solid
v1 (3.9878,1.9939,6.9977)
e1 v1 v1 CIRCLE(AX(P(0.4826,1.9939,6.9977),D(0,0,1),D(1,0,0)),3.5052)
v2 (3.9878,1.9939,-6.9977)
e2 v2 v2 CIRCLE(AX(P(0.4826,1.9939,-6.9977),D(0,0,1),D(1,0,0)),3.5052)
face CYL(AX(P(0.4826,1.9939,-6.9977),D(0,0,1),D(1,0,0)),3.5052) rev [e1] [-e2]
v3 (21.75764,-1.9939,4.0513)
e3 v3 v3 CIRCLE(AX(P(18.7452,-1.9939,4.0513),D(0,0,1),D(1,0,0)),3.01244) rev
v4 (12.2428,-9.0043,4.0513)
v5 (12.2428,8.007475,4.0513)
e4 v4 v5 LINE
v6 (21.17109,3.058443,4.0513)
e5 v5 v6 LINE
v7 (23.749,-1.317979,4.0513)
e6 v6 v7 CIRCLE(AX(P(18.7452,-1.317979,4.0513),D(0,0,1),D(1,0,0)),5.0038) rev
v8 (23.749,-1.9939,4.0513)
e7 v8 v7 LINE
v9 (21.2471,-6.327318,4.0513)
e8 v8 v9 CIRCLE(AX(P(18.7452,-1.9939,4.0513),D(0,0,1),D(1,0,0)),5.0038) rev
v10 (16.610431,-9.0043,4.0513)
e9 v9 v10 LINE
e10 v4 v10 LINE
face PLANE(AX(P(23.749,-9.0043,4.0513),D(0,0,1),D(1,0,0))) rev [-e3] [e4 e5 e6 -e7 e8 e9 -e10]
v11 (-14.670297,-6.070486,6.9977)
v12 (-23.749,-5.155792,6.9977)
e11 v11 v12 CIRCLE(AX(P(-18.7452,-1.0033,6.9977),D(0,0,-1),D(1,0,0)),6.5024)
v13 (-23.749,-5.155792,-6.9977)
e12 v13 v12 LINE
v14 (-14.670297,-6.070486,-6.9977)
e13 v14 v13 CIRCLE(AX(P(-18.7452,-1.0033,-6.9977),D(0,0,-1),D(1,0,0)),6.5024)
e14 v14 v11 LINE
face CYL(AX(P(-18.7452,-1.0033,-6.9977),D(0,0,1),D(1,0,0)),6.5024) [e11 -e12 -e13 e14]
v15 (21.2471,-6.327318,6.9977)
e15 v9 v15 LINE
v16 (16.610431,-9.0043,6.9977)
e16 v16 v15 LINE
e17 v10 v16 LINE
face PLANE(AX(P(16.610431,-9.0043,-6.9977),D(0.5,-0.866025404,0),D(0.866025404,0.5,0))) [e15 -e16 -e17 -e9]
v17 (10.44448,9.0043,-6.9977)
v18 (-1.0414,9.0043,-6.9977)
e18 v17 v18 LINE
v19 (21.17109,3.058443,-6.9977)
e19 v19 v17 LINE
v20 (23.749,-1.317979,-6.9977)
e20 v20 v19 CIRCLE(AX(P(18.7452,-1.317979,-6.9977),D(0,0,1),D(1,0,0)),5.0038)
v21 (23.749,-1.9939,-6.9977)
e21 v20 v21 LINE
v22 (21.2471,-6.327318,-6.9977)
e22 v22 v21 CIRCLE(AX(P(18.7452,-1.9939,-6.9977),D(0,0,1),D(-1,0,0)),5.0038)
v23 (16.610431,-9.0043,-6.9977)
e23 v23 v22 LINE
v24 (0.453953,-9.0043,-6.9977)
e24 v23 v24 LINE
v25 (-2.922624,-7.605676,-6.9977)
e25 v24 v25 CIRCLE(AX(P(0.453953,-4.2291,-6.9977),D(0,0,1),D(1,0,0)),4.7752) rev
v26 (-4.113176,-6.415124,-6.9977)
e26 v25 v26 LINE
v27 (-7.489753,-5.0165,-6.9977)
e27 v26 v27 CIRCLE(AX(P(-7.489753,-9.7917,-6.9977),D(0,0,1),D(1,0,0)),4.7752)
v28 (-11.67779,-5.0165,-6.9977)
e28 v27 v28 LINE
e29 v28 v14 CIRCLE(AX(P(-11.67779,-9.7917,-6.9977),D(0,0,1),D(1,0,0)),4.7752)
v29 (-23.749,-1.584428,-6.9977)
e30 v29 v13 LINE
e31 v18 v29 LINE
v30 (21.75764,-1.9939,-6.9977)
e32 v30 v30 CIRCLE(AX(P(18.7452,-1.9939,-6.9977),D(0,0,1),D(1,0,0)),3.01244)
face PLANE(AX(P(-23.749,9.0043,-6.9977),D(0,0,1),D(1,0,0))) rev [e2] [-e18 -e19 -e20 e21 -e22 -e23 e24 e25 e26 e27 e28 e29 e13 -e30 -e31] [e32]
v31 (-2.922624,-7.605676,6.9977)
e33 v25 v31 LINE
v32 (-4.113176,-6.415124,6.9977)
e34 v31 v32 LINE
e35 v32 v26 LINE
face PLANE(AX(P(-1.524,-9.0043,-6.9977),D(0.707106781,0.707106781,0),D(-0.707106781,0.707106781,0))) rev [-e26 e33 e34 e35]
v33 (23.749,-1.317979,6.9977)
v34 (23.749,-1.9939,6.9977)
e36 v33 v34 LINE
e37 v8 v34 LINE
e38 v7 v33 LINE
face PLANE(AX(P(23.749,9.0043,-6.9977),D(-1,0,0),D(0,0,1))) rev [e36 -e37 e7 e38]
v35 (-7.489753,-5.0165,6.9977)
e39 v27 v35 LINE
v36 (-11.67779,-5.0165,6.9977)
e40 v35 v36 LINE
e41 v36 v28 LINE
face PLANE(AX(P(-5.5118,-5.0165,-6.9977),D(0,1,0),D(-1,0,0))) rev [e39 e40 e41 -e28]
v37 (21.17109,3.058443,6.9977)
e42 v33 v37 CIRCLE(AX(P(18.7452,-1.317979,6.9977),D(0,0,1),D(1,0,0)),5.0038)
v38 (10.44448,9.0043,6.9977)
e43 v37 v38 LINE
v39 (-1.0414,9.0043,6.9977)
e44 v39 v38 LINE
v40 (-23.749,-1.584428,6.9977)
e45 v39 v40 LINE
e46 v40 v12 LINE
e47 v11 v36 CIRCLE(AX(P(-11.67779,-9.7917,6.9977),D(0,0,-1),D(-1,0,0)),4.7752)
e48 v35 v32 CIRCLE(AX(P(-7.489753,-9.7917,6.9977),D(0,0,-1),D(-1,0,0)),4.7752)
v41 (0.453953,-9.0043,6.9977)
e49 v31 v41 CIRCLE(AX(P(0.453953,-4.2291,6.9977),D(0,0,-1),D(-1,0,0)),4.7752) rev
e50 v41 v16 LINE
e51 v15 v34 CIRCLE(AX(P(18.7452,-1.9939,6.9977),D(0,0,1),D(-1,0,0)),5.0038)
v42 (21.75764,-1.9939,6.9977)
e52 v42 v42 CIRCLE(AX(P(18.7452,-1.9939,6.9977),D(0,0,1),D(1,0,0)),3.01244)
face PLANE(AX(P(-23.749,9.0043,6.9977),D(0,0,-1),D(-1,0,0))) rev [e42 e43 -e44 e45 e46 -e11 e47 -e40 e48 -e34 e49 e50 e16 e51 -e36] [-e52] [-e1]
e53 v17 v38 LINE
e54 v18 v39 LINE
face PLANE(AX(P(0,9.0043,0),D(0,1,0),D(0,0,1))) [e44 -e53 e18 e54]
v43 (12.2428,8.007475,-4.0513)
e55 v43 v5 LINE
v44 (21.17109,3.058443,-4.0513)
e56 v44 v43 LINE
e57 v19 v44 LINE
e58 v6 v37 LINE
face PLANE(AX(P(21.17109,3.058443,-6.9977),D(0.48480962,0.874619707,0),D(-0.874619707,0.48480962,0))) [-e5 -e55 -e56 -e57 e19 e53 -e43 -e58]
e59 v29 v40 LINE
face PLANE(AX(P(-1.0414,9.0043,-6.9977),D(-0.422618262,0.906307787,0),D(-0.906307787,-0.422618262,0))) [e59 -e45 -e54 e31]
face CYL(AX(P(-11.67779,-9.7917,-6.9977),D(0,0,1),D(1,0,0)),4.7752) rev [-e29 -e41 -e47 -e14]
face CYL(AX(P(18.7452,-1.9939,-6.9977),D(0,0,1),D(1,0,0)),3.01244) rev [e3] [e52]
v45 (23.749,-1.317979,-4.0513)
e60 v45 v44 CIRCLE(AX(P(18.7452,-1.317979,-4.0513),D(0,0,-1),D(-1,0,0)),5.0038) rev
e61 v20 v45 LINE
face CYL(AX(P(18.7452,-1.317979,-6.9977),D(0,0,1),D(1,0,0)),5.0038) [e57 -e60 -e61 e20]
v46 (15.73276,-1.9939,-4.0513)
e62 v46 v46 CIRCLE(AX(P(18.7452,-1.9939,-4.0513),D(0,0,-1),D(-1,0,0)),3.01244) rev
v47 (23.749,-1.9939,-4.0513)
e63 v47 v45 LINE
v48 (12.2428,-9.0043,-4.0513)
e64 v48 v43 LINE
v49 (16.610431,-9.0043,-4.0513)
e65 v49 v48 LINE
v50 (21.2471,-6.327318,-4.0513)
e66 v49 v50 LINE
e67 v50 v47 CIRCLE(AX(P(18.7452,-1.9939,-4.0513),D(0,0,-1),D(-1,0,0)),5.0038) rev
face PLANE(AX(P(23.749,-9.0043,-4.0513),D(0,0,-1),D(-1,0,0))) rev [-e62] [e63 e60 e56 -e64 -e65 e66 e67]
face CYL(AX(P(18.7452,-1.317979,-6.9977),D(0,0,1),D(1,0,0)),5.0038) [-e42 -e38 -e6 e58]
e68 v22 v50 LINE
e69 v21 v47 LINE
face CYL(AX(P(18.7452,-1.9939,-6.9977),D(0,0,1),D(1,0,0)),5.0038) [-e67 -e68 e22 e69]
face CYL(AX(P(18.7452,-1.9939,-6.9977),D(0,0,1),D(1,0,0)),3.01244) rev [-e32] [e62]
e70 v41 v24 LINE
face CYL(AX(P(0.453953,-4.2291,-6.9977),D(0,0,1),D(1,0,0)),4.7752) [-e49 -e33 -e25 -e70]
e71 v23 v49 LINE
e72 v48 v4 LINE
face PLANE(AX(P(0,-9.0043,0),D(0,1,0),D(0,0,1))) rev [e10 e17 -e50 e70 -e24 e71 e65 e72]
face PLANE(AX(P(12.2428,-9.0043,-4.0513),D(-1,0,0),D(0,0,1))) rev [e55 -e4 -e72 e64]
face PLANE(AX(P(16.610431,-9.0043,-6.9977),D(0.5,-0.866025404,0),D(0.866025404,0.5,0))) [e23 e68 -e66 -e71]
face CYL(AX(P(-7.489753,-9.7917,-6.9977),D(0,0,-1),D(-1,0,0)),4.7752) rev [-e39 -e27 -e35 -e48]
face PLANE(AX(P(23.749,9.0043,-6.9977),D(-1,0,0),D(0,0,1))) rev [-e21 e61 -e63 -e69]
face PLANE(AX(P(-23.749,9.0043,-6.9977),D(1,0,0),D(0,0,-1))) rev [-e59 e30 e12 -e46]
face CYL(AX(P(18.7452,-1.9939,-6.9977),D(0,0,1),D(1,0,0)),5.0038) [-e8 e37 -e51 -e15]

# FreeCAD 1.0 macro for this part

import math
import FreeCAD as App
import Part
import Sketcher
Q = App.Units.Quantity


def edges_at(feature, points):
    """Names of the edges that pass closest to the given points."""
    edges = feature.Shape.Edges
    near = lambda p: min(range(len(edges)), key=lambda i: edges[i].distToShape(Part.Vertex(*p))[0])
    return sorted({f"Edge{near(p) + 1}" for p in points})

doc = App.newDocument("Part")
body = doc.addObject("PartDesign::Body", "Body")

# Sketch on XZ plane
sketch1 = body.newObject("Sketcher::SketchObject", "Sketch")
sketch1.AttachmentSupport = (doc.getObject("XZ_Plane"), [""])
sketch1.MapMode = "FlatFace"
sketch1.addGeometry([
    Part.LineSegment(App.Vector(-24, -7, 0), App.Vector(-24, 7, 0)),
    Part.LineSegment(App.Vector(-24, 7, 0), App.Vector(24, 7, 0)),
    Part.LineSegment(App.Vector(24, 7, 0), App.Vector(24, -7, 0)),
    Part.LineSegment(App.Vector(24, -7, 0), App.Vector(-24, -7, 0)),
], False)
sketch1.addConstraint([
    Sketcher.Constraint("Coincident", 0, 2, 1, 1),
    Sketcher.Constraint("Coincident", 1, 2, 2, 1),
    Sketcher.Constraint("Coincident", 2, 2, 3, 1),
    Sketcher.Constraint("Coincident", 3, 2, 0, 1),
    Sketcher.Constraint("Vertical", 0),
    Sketcher.Constraint("Horizontal", 1),
    Sketcher.Constraint("Vertical", 2),
    Sketcher.Constraint("Horizontal", 3),
    Sketcher.Constraint("Symmetric", 0, 2, 2, 2, -1, 1),
    Sketcher.Constraint("DistanceX", 1, 1, 1, 2, Q("1.87 in")),
    Sketcher.Constraint("DistanceY", 0, 1, 0, 2, Q("0.551 in")),
])
pad1 = body.newObject("PartDesign::Pad", "Pad")
pad1.Profile = sketch1
pad1.Length = Q("0.709 in")
pad1.Midplane = True

# Sketch on XY plane
sketch2 = body.newObject("Sketcher::SketchObject", "Sketch001")
sketch2.AttachmentSupport = (doc.getObject("XY_Plane"), [""])
sketch2.MapMode = "FlatFace"
sketch2.addGeometry([
    Part.Circle(App.Vector(18.7, -2, 0), App.Vector(0, 0, 1), 3),
    Part.Circle(App.Vector(0.5, 2, 0), App.Vector(0, 0, 1), 3.5),
], False)
sketch2.addConstraint([
    Sketcher.Constraint("Diameter", 1, Q("0.276 in")),
    Sketcher.Constraint("Diameter", 0, Q("0.2372 in")),
    Sketcher.Constraint("DistanceX", -1, 1, 0, 3, Q("0.738 in")),
    Sketcher.Constraint("DistanceX", -1, 1, 1, 3, Q("0.019 in")),
    Sketcher.Constraint("DistanceY", 0, 3, 1, 3, Q("0.157 in")),
    Sketcher.Constraint("DistanceY", 0, 3, -1, 1, Q("0.0785 in")),
])
pocket1 = body.newObject("PartDesign::Pocket", "Pocket")
pocket1.Profile = sketch2
pocket1.Type = "ThroughAll"
pocket1.Midplane = True

# Sketch on XY plane
sketch3 = body.newObject("Sketcher::SketchObject", "Sketch002")
sketch3.AttachmentSupport = (doc.getObject("XY_Plane"), [""])
sketch3.MapMode = "FlatFace"
sketch3.addGeometry([
    Part.LineSegment(App.Vector(-30, 15.3, 0), App.Vector(-30, -15.3, 0)),  # 0
    Part.LineSegment(App.Vector(-30, -15.3, 0), App.Vector(30, -15.3, 0)),  # 1
    Part.LineSegment(App.Vector(30, -15.3, 0), App.Vector(30, 15.3, 0)),  # 2
    Part.LineSegment(App.Vector(30, 15.3, 0), App.Vector(-30, 15.3, 0)),  # 3
    Part.LineSegment(App.Vector(21.2, -6.3, 0), App.Vector(16.6, -9, 0)),  # 4
    Part.LineSegment(App.Vector(16.6, -9, 0), App.Vector(-23.7, -9, 0)),  # 5
    Part.LineSegment(App.Vector(-23.7, -9, 0), App.Vector(-23.7, -1.6, 0)),  # 6
    Part.LineSegment(App.Vector(-23.7, -1.6, 0), App.Vector(-1, 9, 0)),  # 7
    Part.LineSegment(App.Vector(-1, 9, 0), App.Vector(10.4, 9, 0)),  # 8
    Part.LineSegment(App.Vector(10.4, 9, 0), App.Vector(21.2, 3.1, 0)),  # 9
    Part.ArcOfCircle(Part.Circle(App.Vector(18.7, -1.3, 0), App.Vector(0, 0, 1), 5), math.radians(0), math.radians(61)),  # 10
    Part.LineSegment(App.Vector(23.7, -1.3, 0), App.Vector(23.7, -2, 0)),  # 11
    Part.ArcOfCircle(Part.Circle(App.Vector(18.7, -2, 0), App.Vector(0, 0, 1), 5), math.radians(-60), math.radians(0)),  # 12
], False)
sketch3.addConstraint([
    Sketcher.Constraint("Coincident", 0, 2, 1, 1),
    Sketcher.Constraint("Coincident", 1, 2, 2, 1),
    Sketcher.Constraint("Coincident", 2, 2, 3, 1),
    Sketcher.Constraint("Coincident", 3, 2, 0, 1),
    Sketcher.Constraint("Coincident", 4, 2, 5, 1),
    Sketcher.Constraint("Coincident", 5, 2, 6, 1),
    Sketcher.Constraint("Coincident", 6, 2, 7, 1),
    Sketcher.Constraint("Coincident", 7, 2, 8, 1),
    Sketcher.Constraint("Coincident", 8, 2, 9, 1),
    Sketcher.Constraint("Tangent", 9, 2, 10, 2),
    Sketcher.Constraint("Tangent", 10, 1, 11, 1),
    Sketcher.Constraint("Tangent", 11, 2, 12, 2),
    Sketcher.Constraint("Tangent", 12, 1, 4, 1),
    Sketcher.Constraint("Vertical", 0),
    Sketcher.Constraint("Horizontal", 1),
    Sketcher.Constraint("Vertical", 2),
    Sketcher.Constraint("Horizontal", 3),
    Sketcher.Constraint("Horizontal", 5),
    Sketcher.Constraint("Vertical", 6),
    Sketcher.Constraint("Horizontal", 8),
    Sketcher.Constraint("Vertical", 11),
    Sketcher.Constraint("Equal", 10, 12),
    Sketcher.Constraint("Symmetric", 0, 2, 2, 2, -1, 1),
    Sketcher.Constraint("Angle", 4, Q("-150 deg")),
    Sketcher.Constraint("Angle", 7, Q("25 deg")),
    Sketcher.Constraint("Angle", 9, Q("-29 deg")),
    Sketcher.Constraint("Radius", 10, Q("0.197 in")),
    Sketcher.Constraint("DistanceX", 8, 1, 8, 2, Q("0.4522 in")),
    Sketcher.Constraint("DistanceX", -1, 1, 10, 3, Q("0.738 in")),
    Sketcher.Constraint("DistanceX", 5, 2, -1, 1, Q("0.935 in")),
    Sketcher.Constraint("DistanceX", 7, 2, -1, 1, Q("0.041 in")),
    Sketcher.Constraint("DistanceY", 4, 2, 12, 3, Q("0.276 in")),
    Sketcher.Constraint("DistanceY", 12, 3, 7, 2, Q("0.433 in")),
    Sketcher.Constraint("DistanceX", 1, 1, 1, 2, 60.036),
    Sketcher.Constraint("DistanceY", 0, 2, 0, 1, 30.546),
    Sketcher.Constraint("DistanceY", 12, 3, -1, 1, Q("0.0785 in")),
])
pocket2 = body.newObject("PartDesign::Pocket", "Pocket001")
pocket2.Profile = sketch3
pocket2.Type = "ThroughAll"
pocket2.Midplane = True

# Sketch on XY plane
sketch4 = body.newObject("Sketcher::SketchObject", "Sketch003")
sketch4.AttachmentSupport = (doc.getObject("XY_Plane"), [""])
sketch4.MapMode = "FlatFace"
sketch4.addGeometry([
    Part.LineSegment(App.Vector(-1.5, -9, 0), App.Vector(-5.5, -5, 0)),  # 0
    Part.LineSegment(App.Vector(-5.5, -5, 0), App.Vector(-13.6, -5, 0)),  # 1
    Part.ArcOfCircle(Part.Circle(App.Vector(-18.7, -1, 0), App.Vector(0, 0, 1), 6.5), math.radians(-140), math.radians(-38)),  # 2
    Part.LineSegment(App.Vector(-23.7, -5.2, 0), App.Vector(-23.7, -9, 0)),  # 3
    Part.LineSegment(App.Vector(-23.7, -9, 0), App.Vector(-1.5, -9, 0)),  # 4
], False)
sketch4.addConstraint([
    Sketcher.Constraint("Coincident", 0, 2, 1, 1),
    Sketcher.Constraint("Coincident", 1, 2, 2, 2),
    Sketcher.Constraint("Coincident", 2, 1, 3, 1),
    Sketcher.Constraint("Coincident", 3, 2, 4, 1),
    Sketcher.Constraint("Coincident", 4, 2, 0, 1),
    Sketcher.Constraint("Horizontal", 1),
    Sketcher.Constraint("Vertical", 3),
    Sketcher.Constraint("Horizontal", 4),
    Sketcher.Constraint("Angle", 0, Q("135 deg")),
    Sketcher.Constraint("Radius", 2, Q("0.256 in")),
    Sketcher.Constraint("DistanceX", 4, 1, 4, 2, Q("0.875 in")),
    Sketcher.Constraint("DistanceX", 4, 2, -1, 1, Q("0.06 in")),
    Sketcher.Constraint("DistanceX", 2, 3, -1, 1, Q("0.738 in")),
    Sketcher.Constraint("DistanceX", 0, 2, -1, 1, Q("0.217 in")),
    Sketcher.Constraint("DistanceY", 0, 2, 2, 3, Q("0.158 in")),
    Sketcher.Constraint("DistanceY", 2, 3, -1, 1, Q("0.0395 in")),
])
pocket3 = body.newObject("PartDesign::Pocket", "Pocket002")
pocket3.Profile = sketch4
pocket3.Type = "ThroughAll"
pocket3.Midplane = True
doc.recompute()

fillet = body.newObject("PartDesign::Fillet", "Fillet")
fillet.Base = (pocket3, edges_at(pocket3, [(-13.629, -5.016, 0), (-5.512, -5.016, 0), (-1.524, -9.004, 0)]))
fillet.Radius = Q("0.188 in")

# Sketch on XZ plane
sketch5 = body.newObject("Sketcher::SketchObject", "Sketch004")
sketch5.AttachmentSupport = (doc.getObject("XZ_Plane"), [""])
sketch5.MapMode = "FlatFace"
sketch5.addGeometry([
    Part.LineSegment(App.Vector(12, -4, 0), App.Vector(12, 4, 0)),
    Part.LineSegment(App.Vector(12, 4, 0), App.Vector(24, 4, 0)),
    Part.LineSegment(App.Vector(24, 4, 0), App.Vector(24, -4, 0)),
    Part.LineSegment(App.Vector(24, -4, 0), App.Vector(12, -4, 0)),
], False)
sketch5.addConstraint([
    Sketcher.Constraint("Coincident", 0, 2, 1, 1),
    Sketcher.Constraint("Coincident", 1, 2, 2, 1),
    Sketcher.Constraint("Coincident", 2, 2, 3, 1),
    Sketcher.Constraint("Coincident", 3, 2, 0, 1),
    Sketcher.Constraint("Vertical", 0),
    Sketcher.Constraint("Horizontal", 1),
    Sketcher.Constraint("Vertical", 2),
    Sketcher.Constraint("Horizontal", 3),
    Sketcher.Constraint("DistanceX", 1, 1, 1, 2, Q("0.453 in")),
    Sketcher.Constraint("DistanceY", 0, 1, 0, 2, Q("0.319 in")),
    Sketcher.Constraint("DistanceX", -1, 1, 0, 2, Q("0.482 in")),
    Sketcher.Constraint("DistanceY", -1, 1, 0, 2, Q("0.1595 in")),
])
pocket4 = body.newObject("PartDesign::Pocket", "Pocket003")
pocket4.Profile = sketch5
pocket4.Type = "ThroughAll"
pocket4.Midplane = True

doc.recompute()
